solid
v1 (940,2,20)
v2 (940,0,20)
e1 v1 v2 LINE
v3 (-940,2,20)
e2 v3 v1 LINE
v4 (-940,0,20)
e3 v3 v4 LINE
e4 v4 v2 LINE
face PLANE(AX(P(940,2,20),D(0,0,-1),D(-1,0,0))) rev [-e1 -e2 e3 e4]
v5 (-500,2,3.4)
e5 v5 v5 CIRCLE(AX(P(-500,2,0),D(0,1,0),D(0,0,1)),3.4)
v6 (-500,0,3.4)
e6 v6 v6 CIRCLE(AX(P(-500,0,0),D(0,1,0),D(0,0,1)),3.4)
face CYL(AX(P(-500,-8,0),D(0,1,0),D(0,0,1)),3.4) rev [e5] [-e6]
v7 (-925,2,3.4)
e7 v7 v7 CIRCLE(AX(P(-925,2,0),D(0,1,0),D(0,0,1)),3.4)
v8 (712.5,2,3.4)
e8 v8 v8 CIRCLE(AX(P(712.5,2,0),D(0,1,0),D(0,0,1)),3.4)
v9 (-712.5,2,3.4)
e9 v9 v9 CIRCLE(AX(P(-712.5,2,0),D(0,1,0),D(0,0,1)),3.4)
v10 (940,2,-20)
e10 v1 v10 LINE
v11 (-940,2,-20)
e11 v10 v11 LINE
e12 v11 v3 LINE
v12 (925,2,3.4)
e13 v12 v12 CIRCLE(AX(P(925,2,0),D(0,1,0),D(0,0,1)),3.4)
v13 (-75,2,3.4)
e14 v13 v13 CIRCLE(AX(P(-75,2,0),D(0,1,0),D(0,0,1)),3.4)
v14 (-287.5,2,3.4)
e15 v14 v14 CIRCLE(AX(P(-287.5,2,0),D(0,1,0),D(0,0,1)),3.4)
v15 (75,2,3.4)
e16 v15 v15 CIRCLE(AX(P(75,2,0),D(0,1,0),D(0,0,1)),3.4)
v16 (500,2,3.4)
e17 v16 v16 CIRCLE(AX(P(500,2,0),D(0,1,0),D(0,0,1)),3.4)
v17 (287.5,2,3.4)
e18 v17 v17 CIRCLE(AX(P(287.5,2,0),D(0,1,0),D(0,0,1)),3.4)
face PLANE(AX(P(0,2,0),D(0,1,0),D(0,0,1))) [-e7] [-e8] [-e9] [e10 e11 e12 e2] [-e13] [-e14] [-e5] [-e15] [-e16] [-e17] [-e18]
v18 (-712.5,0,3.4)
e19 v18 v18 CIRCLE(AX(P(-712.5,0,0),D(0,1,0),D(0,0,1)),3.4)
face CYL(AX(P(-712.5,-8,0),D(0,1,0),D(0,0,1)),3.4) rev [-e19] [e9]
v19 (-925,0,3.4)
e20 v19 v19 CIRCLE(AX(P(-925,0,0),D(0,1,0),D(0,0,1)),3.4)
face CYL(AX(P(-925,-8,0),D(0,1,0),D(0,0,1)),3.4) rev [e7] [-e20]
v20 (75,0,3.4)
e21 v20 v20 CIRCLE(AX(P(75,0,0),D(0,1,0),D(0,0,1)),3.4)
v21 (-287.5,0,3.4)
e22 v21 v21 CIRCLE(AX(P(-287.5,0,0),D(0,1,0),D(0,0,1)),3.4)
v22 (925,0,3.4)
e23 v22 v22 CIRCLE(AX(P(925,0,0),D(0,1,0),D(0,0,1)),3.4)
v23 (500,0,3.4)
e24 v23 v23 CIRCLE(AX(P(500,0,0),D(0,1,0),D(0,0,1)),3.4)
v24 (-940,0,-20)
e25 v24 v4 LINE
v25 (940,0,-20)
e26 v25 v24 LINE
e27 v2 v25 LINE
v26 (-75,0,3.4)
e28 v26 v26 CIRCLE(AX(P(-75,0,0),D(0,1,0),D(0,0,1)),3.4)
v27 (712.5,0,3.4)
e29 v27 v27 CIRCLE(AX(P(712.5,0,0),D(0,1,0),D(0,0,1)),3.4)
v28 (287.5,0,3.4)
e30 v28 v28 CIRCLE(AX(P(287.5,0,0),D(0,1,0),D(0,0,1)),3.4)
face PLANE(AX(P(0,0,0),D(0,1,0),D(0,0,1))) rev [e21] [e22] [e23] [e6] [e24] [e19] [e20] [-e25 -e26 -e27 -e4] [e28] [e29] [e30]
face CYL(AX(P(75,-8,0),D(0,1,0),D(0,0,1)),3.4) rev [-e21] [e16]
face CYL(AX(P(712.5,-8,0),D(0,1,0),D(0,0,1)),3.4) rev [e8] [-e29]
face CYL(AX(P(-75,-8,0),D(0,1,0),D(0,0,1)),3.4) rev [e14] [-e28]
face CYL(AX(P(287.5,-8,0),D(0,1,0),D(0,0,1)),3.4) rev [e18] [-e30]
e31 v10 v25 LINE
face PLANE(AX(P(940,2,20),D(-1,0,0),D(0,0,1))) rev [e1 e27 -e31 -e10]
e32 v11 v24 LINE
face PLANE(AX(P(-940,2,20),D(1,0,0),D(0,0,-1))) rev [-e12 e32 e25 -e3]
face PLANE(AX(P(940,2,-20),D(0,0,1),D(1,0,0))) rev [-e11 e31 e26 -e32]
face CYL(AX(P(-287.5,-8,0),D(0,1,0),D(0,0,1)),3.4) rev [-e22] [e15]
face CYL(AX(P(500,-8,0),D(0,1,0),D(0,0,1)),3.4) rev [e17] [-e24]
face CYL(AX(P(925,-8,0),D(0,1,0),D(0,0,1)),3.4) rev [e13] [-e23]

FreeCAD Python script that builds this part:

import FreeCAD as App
import Part
import Sketcher

doc = App.newDocument("Part")
params = doc.addObject("Spreadsheet::Sheet", "Params")
for row, (alias, value) in enumerate([
    ("sketch1_width", "1880 mm"),
    ("sketch1_height", "40 mm"),
    ("pad1_length", "2 mm"),
    ("sketch2_diameter", "6.8 mm"),
    ("pocket1_length", "10 mm"),
], start=1):
    params.set(f"A{row}", alias)
    params.set(f"B{row}", "=" + value)
    params.setAlias(f"B{row}", alias)

body = doc.addObject("PartDesign::Body", "Body")

# Sketch on XZ plane
sketch1 = body.newObject("Sketcher::SketchObject", "Sketch")
sketch1.AttachmentSupport = (doc.getObject("XZ_Plane"), [""])
sketch1.MapMode = "FlatFace"
sketch1.addGeometry(Part.LineSegment(App.Vector(-940, -20, 0), App.Vector(-940, 20, 0)), False)
sketch1.addGeometry(Part.LineSegment(App.Vector(-940, 20, 0), App.Vector(940, 20, 0)), False)
sketch1.addGeometry(Part.LineSegment(App.Vector(940, 20, 0), App.Vector(940, -20, 0)), False)
sketch1.addGeometry(Part.LineSegment(App.Vector(940, -20, 0), App.Vector(-940, -20, 0)), False)
sketch1.addConstraint(Sketcher.Constraint("Coincident", 0, 2, 1, 1))
sketch1.addConstraint(Sketcher.Constraint("Coincident", 1, 2, 2, 1))
sketch1.addConstraint(Sketcher.Constraint("Coincident", 2, 2, 3, 1))
sketch1.addConstraint(Sketcher.Constraint("Coincident", 3, 2, 0, 1))
sketch1.addConstraint(Sketcher.Constraint("Vertical", 0))
sketch1.addConstraint(Sketcher.Constraint("Horizontal", 1))
sketch1.addConstraint(Sketcher.Constraint("Vertical", 2))
sketch1.addConstraint(Sketcher.Constraint("Horizontal", 3))
sketch1.addConstraint(Sketcher.Constraint("Symmetric", 0, 2, 2, 2, -1, 1))
sketch1.addConstraint(Sketcher.Constraint("DistanceX", 1, 1, 1, 2, 1880.0))
sketch1.addConstraint(Sketcher.Constraint("DistanceY", 0, 1, 0, 2, 40.0))
sketch1.setExpression("Constraints[9]", "Params.sketch1_width")
sketch1.setExpression("Constraints[10]", "Params.sketch1_height")
pad1 = body.newObject("PartDesign::Pad", "Pad")
pad1.Profile = sketch1
pad1.setExpression("Length", "Params.pad1_length")
pad1.Reversed = True

# Sketch on XZ plane
sketch2 = body.newObject("Sketcher::SketchObject", "Sketch001")
sketch2.AttachmentSupport = (doc.getObject("XZ_Plane"), [""])
sketch2.MapMode = "FlatFace"
sketch2.AttachmentOffset = App.Placement(App.Vector(0, 0, -2), App.Rotation())
sketch2.addGeometry(Part.Circle(App.Vector(-925, 0, 0), App.Vector(0, 0, 1), 3.4), False)
sketch2.addGeometry(Part.Circle(App.Vector(-712.5, 0, 0), App.Vector(0, 0, 1), 3.4), False)
sketch2.addGeometry(Part.Circle(App.Vector(-500, 0, 0), App.Vector(0, 0, 1), 3.4), False)
sketch2.addGeometry(Part.Circle(App.Vector(-287.5, 0, 0), App.Vector(0, 0, 1), 3.4), False)
sketch2.addGeometry(Part.Circle(App.Vector(-75, 0, 0), App.Vector(0, 0, 1), 3.4), False)
sketch2.addGeometry(Part.Circle(App.Vector(925, 0, 0), App.Vector(0, 0, 1), 3.4), False)
sketch2.addGeometry(Part.Circle(App.Vector(712.5, 0, 0), App.Vector(0, 0, 1), 3.4), False)
sketch2.addGeometry(Part.Circle(App.Vector(500, 0, 0), App.Vector(0, 0, 1), 3.4), False)
sketch2.addGeometry(Part.Circle(App.Vector(287.5, 0, 0), App.Vector(0, 0, 1), 3.4), False)
sketch2.addGeometry(Part.Circle(App.Vector(75, 0, 0), App.Vector(0, 0, 1), 3.4), False)
sketch2.addConstraint(Sketcher.Constraint("Equal", 0, 1))
sketch2.addConstraint(Sketcher.Constraint("Equal", 1, 2))
sketch2.addConstraint(Sketcher.Constraint("Equal", 2, 3))
sketch2.addConstraint(Sketcher.Constraint("Equal", 3, 4))
sketch2.addConstraint(Sketcher.Constraint("Equal", 4, 5))
sketch2.addConstraint(Sketcher.Constraint("Equal", 5, 6))
sketch2.addConstraint(Sketcher.Constraint("Equal", 6, 7))
sketch2.addConstraint(Sketcher.Constraint("Equal", 7, 8))
sketch2.addConstraint(Sketcher.Constraint("Equal", 8, 9))
sketch2.addConstraint(Sketcher.Constraint("Symmetric", 0, 3, 5, 3, -1, 1))
sketch2.addConstraint(Sketcher.Constraint("Symmetric", 1, 3, 6, 3, -1, 1))
sketch2.addConstraint(Sketcher.Constraint("Symmetric", 2, 3, 7, 3, -1, 1))
sketch2.addConstraint(Sketcher.Constraint("Symmetric", 3, 3, 8, 3, -1, 1))
sketch2.addConstraint(Sketcher.Constraint("Symmetric", 4, 3, 9, 3, -1, 1))
sketch2.addConstraint(Sketcher.Constraint("PointOnObject", 0, 3, -1))
sketch2.addConstraint(Sketcher.Constraint("PointOnObject", 1, 3, -1))
sketch2.addConstraint(Sketcher.Constraint("PointOnObject", 2, 3, -1))
sketch2.addConstraint(Sketcher.Constraint("PointOnObject", 3, 3, -1))
sketch2.addConstraint(Sketcher.Constraint("PointOnObject", 4, 3, -1))
sketch2.addConstraint(Sketcher.Constraint("Diameter", 0, 6.8))
sketch2.addConstraint(Sketcher.Constraint("DistanceX", 0, 3, -1, 1, 925.0))
sketch2.addConstraint(Sketcher.Constraint("DistanceX", 2, 3, -1, 1, 500.0))
sketch2.addConstraint(Sketcher.Constraint("DistanceX", 4, 3, -1, 1, 75.0))
sketch2.addConstraint(Sketcher.Constraint("DistanceX", 1, 3, 3, 3, 425.0))
sketch2.addConstraint(Sketcher.Constraint("DistanceX", 3, 3, 6, 3, 1000.0))
sketch2.setExpression("Constraints[19]", "Params.sketch2_diameter")
pocket1 = body.newObject("PartDesign::Pocket", "Pocket")
pocket1.Profile = sketch2
pocket1.setExpression("Length", "Params.pocket1_length")
pocket1.Reversed = True

doc.recompute()
